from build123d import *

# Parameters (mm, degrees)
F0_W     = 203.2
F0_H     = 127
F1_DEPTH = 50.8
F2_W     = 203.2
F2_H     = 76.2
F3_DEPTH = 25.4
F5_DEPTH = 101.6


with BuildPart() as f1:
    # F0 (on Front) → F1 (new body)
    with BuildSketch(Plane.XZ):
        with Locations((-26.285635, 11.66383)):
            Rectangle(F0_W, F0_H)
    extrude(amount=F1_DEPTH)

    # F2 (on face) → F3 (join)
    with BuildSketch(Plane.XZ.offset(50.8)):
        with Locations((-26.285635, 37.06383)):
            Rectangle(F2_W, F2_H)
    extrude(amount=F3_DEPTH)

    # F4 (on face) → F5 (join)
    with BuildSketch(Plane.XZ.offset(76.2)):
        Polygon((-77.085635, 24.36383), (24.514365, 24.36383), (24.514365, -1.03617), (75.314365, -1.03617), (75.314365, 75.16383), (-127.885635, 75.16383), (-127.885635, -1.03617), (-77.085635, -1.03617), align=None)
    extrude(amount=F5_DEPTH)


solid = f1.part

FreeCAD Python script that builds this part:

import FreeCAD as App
import Part
import Sketcher
from FreeCAD import Vector
Q = App.Units.Quantity


def add_polygon(sketch, points):
    """Adds a closed chain of lines whose ends are joined by coincident constraints."""
    first, n = sketch.GeometryCount, len(points)
    for a, b in zip(points, points[1:] + points[:1]):
        sketch.addGeometry(Part.LineSegment(App.Vector(*a, 0), App.Vector(*b, 0)), False)
    for i in range(n):
        sketch.addConstraint(Sketcher.Constraint("Coincident", first + i, 2, first + (i + 1) % n, 1))

doc = App.newDocument("Part")
body = doc.addObject("PartDesign::Body", "Body")

sketch1 = doc.addObject("Sketcher::SketchObject", "Sketch")
body.addObject(sketch1)
sketch1.AttachmentSupport = (doc.XZ_Plane, [""])
sketch1.MapMode = "FlatFace"
add_polygon(sketch1, [(-127.885635, 75.16383), (-127.885635, -51.83617), (75.314365, -51.83617), (75.314365, 75.16383)])
sketch1.addConstraint([
    Sketcher.Constraint("Vertical", 0),
    Sketcher.Constraint("Horizontal", 1),
    Sketcher.Constraint("Vertical", 2),
    Sketcher.Constraint("Horizontal", 3),
    Sketcher.Constraint("DistanceX", 1, 1, 1, 2, Q("8 in")),
    Sketcher.Constraint("DistanceY", 0, 2, 0, 1, Q("5 in")),
    Sketcher.Constraint("DistanceY", 0, 2, -1, 1, 51.83617),
    Sketcher.Constraint("DistanceX", 0, 2, -1, 1, 127.885635),
])
pad1 = doc.addObject("PartDesign::Pad", "Pad")
body.addObject(pad1)
pad1.Profile = sketch1
pad1.Length = Q("2 in")

sketch2 = doc.addObject("Sketcher::SketchObject", "Sketch001")
body.addObject(sketch2)
sketch2.AttachmentSupport = (doc.XZ_Plane, [""])
sketch2.MapMode = "FlatFace"
sketch2.AttachmentOffset = App.Placement(Vector(0, 0, 2 * 25.4), App.Rotation())
add_polygon(sketch2, [(-127.885635, 75.16383), (-127.885635, -1.03617), (75.314365, -1.03617), (75.314365, 75.16383)])
sketch2.addConstraint([
    Sketcher.Constraint("Vertical", 0),
    Sketcher.Constraint("Horizontal", 1),
    Sketcher.Constraint("Vertical", 2),
    Sketcher.Constraint("Horizontal", 3),
    Sketcher.Constraint("DistanceX", 1, 1, 1, 2, Q("8 in")),
    Sketcher.Constraint("DistanceY", 0, 2, 0, 1, Q("3 in")),
    Sketcher.Constraint("DistanceY", 0, 2, -1, 1, 1.03617),
    Sketcher.Constraint("DistanceX", 0, 2, -1, 1, 127.885635),
])
pad2 = doc.addObject("PartDesign::Pad", "Pad001")
body.addObject(pad2)
pad2.Profile = sketch2
pad2.Length = Q("1 in")

sketch3 = doc.addObject("Sketcher::SketchObject", "Sketch002")
body.addObject(sketch3)
sketch3.AttachmentSupport = (doc.XZ_Plane, [""])
sketch3.MapMode = "FlatFace"
sketch3.AttachmentOffset = App.Placement(Vector(0, 0, 3 * 25.4), App.Rotation())
add_polygon(sketch3, [(-77.085635, 24.36383), (24.514365, 24.36383), (24.514365, -1.03617), (75.314365, -1.03617), (75.314365, 75.16383), (-127.885635, 75.16383), (-127.885635, -1.03617), (-77.085635, -1.03617)])
sketch3.addConstraint([
    Sketcher.Constraint("Horizontal", 0),
    Sketcher.Constraint("Vertical", 1),
    Sketcher.Constraint("Horizontal", 2),
    Sketcher.Constraint("Vertical", 3),
    Sketcher.Constraint("Horizontal", 4),
    Sketcher.Constraint("Vertical", 5),
    Sketcher.Constraint("Horizontal", 6),
    Sketcher.Constraint("Vertical", 7),
    Sketcher.Constraint("Horizontal", 2, 2, 5, 2),
    Sketcher.Constraint("Equal", 2, 6),
    Sketcher.Constraint("DistanceX", 0, 1, 0, 2, Q("4 in")),
    Sketcher.Constraint("DistanceX", 2, 1, 2, 2, Q("2 in")),
    Sketcher.Constraint("DistanceY", 1, 2, 1, 1, Q("1 in")),
    Sketcher.Constraint("DistanceY", 3, 1, 3, 2, Q("3 in")),
    Sketcher.Constraint("DistanceY", -1, 1, 0, 2, 24.36383),
    Sketcher.Constraint("DistanceX", -1, 1, 0, 2, 24.514365),
])
pad3 = doc.addObject("PartDesign::Pad", "Pad002")
body.addObject(pad3)
pad3.Profile = sketch3
pad3.Length = Q("4 in")

doc.recompute()
